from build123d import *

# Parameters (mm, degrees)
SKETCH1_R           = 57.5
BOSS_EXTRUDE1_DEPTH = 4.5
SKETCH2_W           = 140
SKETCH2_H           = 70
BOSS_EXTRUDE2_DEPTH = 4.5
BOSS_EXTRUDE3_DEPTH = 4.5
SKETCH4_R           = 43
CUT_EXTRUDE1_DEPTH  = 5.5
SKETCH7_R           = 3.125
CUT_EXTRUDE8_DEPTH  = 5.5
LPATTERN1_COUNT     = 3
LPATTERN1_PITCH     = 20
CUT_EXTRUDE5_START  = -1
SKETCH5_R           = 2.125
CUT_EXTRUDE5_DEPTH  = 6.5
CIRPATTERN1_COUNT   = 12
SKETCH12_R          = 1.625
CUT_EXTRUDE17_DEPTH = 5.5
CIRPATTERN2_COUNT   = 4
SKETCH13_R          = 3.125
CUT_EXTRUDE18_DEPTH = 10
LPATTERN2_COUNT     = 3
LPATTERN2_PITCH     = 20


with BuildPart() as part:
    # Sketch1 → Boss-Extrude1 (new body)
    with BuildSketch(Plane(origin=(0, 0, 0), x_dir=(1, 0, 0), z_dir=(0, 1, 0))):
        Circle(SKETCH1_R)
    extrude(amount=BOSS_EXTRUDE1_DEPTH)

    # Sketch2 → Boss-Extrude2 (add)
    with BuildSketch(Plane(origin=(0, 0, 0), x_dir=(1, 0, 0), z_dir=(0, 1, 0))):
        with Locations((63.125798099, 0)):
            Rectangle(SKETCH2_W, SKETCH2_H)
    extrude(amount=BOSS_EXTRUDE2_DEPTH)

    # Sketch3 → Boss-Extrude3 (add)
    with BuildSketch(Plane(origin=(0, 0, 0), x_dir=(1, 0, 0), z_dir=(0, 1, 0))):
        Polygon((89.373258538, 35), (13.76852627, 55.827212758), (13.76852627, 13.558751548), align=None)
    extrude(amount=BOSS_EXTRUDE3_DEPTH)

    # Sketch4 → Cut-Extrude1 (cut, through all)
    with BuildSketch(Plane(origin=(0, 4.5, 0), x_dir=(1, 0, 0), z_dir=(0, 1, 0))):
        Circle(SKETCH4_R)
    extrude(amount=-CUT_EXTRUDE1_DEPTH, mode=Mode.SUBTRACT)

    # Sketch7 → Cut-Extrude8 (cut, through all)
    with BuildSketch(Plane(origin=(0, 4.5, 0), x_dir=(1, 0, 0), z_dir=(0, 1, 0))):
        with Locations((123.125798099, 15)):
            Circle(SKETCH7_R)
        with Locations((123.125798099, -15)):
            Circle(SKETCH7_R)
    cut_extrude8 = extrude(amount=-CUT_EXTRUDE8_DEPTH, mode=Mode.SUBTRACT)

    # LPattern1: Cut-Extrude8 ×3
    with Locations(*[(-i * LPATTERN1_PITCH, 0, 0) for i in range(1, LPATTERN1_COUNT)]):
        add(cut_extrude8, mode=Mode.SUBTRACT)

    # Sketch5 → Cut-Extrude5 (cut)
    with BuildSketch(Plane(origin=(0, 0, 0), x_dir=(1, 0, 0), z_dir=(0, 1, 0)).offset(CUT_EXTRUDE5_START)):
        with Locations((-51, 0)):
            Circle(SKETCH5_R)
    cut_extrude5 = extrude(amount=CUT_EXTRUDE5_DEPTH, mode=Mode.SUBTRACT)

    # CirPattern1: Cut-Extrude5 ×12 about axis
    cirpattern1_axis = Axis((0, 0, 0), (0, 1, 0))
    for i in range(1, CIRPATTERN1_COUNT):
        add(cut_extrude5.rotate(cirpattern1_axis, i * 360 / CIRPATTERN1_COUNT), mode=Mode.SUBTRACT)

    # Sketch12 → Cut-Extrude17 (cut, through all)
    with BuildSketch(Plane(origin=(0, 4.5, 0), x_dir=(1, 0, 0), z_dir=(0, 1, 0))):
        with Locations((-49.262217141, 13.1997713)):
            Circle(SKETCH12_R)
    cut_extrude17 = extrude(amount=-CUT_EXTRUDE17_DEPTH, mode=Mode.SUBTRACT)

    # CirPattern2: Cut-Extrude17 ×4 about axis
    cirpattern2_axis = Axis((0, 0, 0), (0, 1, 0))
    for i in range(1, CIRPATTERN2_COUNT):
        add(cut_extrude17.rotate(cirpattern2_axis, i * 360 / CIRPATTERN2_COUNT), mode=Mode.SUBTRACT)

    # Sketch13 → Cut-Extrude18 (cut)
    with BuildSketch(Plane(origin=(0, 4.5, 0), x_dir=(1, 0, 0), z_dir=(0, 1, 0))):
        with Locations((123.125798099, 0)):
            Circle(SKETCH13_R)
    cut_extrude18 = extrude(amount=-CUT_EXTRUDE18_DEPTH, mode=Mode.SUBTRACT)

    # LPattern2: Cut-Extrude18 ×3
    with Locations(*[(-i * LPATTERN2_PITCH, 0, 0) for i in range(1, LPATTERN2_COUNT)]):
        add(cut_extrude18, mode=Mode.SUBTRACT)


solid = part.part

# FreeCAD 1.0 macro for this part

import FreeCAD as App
import Part
import Sketcher

V = App.Vector
Q = App.Units.Quantity

doc = App.newDocument("Part")
body = doc.addObject("PartDesign::Body", "Body")

# Sketch on XZ plane
sketch1 = body.newObject("Sketcher::SketchObject", "Sketch")
sketch1.AttachmentSupport = (doc.getObject("XZ_Plane"), [""])
sketch1.MapMode = "FlatFace"
sketch1.addGeometry(Part.Circle(V(0, 0, 0), V(0, 0, 1), 57.5), False)
sketch1.addConstraint(Sketcher.Constraint("Coincident", 0, 3, -1, 1))
sketch1.addConstraint(Sketcher.Constraint("Diameter", 0, Q("115 mm")))
pad1 = body.newObject("PartDesign::Pad", "Pad")
pad1.Profile = sketch1
pad1.Length = 4.5
pad1.Reversed = True

# Sketch on XZ plane
sketch2 = body.newObject("Sketcher::SketchObject", "Sketch001")
sketch2.AttachmentSupport = (doc.getObject("XZ_Plane"), [""])
sketch2.MapMode = "FlatFace"
sketch2.addGeometry(Part.LineSegment(V(-6.874202, -35, 0), V(-6.874202, 35, 0)), False)
sketch2.addGeometry(Part.LineSegment(V(-6.874202, 35, 0), V(133.125798, 35, 0)), False)
sketch2.addGeometry(Part.LineSegment(V(133.125798, 35, 0), V(133.125798, -35, 0)), False)
sketch2.addGeometry(Part.LineSegment(V(133.125798, -35, 0), V(-6.874202, -35, 0)), False)
sketch2.addConstraint(Sketcher.Constraint("Coincident", 0, 2, 1, 1))
sketch2.addConstraint(Sketcher.Constraint("Coincident", 1, 2, 2, 1))
sketch2.addConstraint(Sketcher.Constraint("Coincident", 2, 2, 3, 1))
sketch2.addConstraint(Sketcher.Constraint("Coincident", 3, 2, 0, 1))
sketch2.addConstraint(Sketcher.Constraint("Vertical", 0))
sketch2.addConstraint(Sketcher.Constraint("Horizontal", 1))
sketch2.addConstraint(Sketcher.Constraint("Vertical", 2))
sketch2.addConstraint(Sketcher.Constraint("Horizontal", 3))
sketch2.addConstraint(Sketcher.Constraint("DistanceX", 1, 1, 1, 2, Q("140 mm")))
sketch2.addConstraint(Sketcher.Constraint("DistanceY", 0, 1, 0, 2, Q("70 mm")))
sketch2.addConstraint(Sketcher.Constraint("DistanceY", -1, 1, 0, 2, Q("35 mm")))
sketch2.addConstraint(Sketcher.Constraint("DistanceX", 0, 2, -1, 1, Q("6.874202 mm")))
pad2 = body.newObject("PartDesign::Pad", "Pad001")
pad2.Profile = sketch2
pad2.Length = 4.5
pad2.Reversed = True

# Sketch on XZ plane
sketch3 = body.newObject("Sketcher::SketchObject", "Sketch002")
sketch3.AttachmentSupport = (doc.getObject("XZ_Plane"), [""])
sketch3.MapMode = "FlatFace"
sketch3.addGeometry(Part.LineSegment(V(89.373259, -35, 0), V(13.768526, -55.827213, 0)), False)
sketch3.addGeometry(Part.LineSegment(V(13.768526, -55.827213, 0), V(13.768526, -13.558752, 0)), False)
sketch3.addGeometry(Part.LineSegment(V(13.768526, -13.558752, 0), V(89.373259, -35, 0)), False)
sketch3.addConstraint(Sketcher.Constraint("Coincident", 0, 2, 1, 1))
sketch3.addConstraint(Sketcher.Constraint("Coincident", 1, 2, 2, 1))
sketch3.addConstraint(Sketcher.Constraint("Coincident", 2, 2, 0, 1))
sketch3.addConstraint(Sketcher.Constraint("Vertical", 1))
sketch3.addConstraint(Sketcher.Constraint("DistanceY", 2, 2, -1, 1, Q("35 mm")))
sketch3.addConstraint(Sketcher.Constraint("DistanceY", 1, 1, 1, 2, Q("42.268461 mm")))
sketch3.addConstraint(Sketcher.Constraint("Distance", 0, Q("78.420969 mm")))
sketch3.addConstraint(Sketcher.Constraint("DistanceY", 1, 2, -1, 1, Q("13.558752 mm")))
sketch3.addConstraint(Sketcher.Constraint("DistanceX", -1, 1, 2, 2, Q("89.373259 mm")))
pad3 = body.newObject("PartDesign::Pad", "Pad002")
pad3.Profile = sketch3
pad3.Length = 4.5
pad3.Reversed = True

# Sketch on XZ plane
sketch4 = body.newObject("Sketcher::SketchObject", "Sketch003")
sketch4.AttachmentSupport = (doc.getObject("XZ_Plane"), [""])
sketch4.MapMode = "FlatFace"
sketch4.AttachmentOffset = App.Placement(V(0, 0, -4.5), App.Rotation())
sketch4.addGeometry(Part.Circle(V(0, 0, 0), V(0, 0, 1), 43), False)
sketch4.addConstraint(Sketcher.Constraint("Coincident", 0, 3, -1, 1))
sketch4.addConstraint(Sketcher.Constraint("Diameter", 0, Q("86 mm")))
pocket1 = body.newObject("PartDesign::Pocket", "Pocket")
pocket1.Profile = sketch4
pocket1.Type = "ThroughAll"
pocket1.Reversed = True

# Sketch on XZ plane
sketch5 = body.newObject("Sketcher::SketchObject", "Sketch004")
sketch5.AttachmentSupport = (doc.getObject("XZ_Plane"), [""])
sketch5.MapMode = "FlatFace"
sketch5.AttachmentOffset = App.Placement(V(0, 0, -4.5), App.Rotation())
sketch5.addGeometry(Part.Circle(V(123.125798, -15, 0), V(0, 0, 1), 3.125), False)
sketch5.addGeometry(Part.Circle(V(123.125798, 15, 0), V(0, 0, 1), 3.125), False)
sketch5.addConstraint(Sketcher.Constraint("Equal", 0, 1))
sketch5.addConstraint(Sketcher.Constraint("Symmetric", 0, 3, 1, 3, -1))
sketch5.addConstraint(Sketcher.Constraint("Diameter", 0, Q("6.25 mm")))
sketch5.addConstraint(Sketcher.Constraint("DistanceY", 0, 3, -1, 1, Q("15 mm")))
sketch5.addConstraint(Sketcher.Constraint("DistanceX", -1, 1, 0, 3, Q("123.125798 mm")))
pocket2 = body.newObject("PartDesign::Pocket", "Pocket001")
pocket2.Profile = sketch5
pocket2.Type = "ThroughAll"
pocket2.Reversed = True
doc.recompute()

linearpattern = body.newObject("PartDesign::LinearPattern", "LinearPattern")
linearpattern.Originals = [pocket2]
linearpattern.Direction = (doc.getObject("X_Axis"), [""])
linearpattern.Mode = "offset"
linearpattern.Offset = 20
linearpattern.Occurrences = 3
linearpattern.Reversed = True
body.Tip = linearpattern

# Sketch on XZ plane
sketch6 = body.newObject("Sketcher::SketchObject", "Sketch005")
sketch6.AttachmentSupport = (doc.getObject("XZ_Plane"), [""])
sketch6.MapMode = "FlatFace"
sketch6.AttachmentOffset = App.Placement(V(0, 0, 1), App.Rotation())
sketch6.addGeometry(Part.Circle(V(-51, 0, 0), V(0, 0, 1), 2.125), False)
sketch6.addConstraint(Sketcher.Constraint("PointOnObject", 0, 3, -1))
sketch6.addConstraint(Sketcher.Constraint("Diameter", 0, Q("4.25 mm")))
sketch6.addConstraint(Sketcher.Constraint("DistanceX", 0, 3, -1, 1, Q("51 mm")))
pocket3 = body.newObject("PartDesign::Pocket", "Pocket002")
pocket3.Profile = sketch6
pocket3.Length = 6.5
doc.recompute()

polarpattern = body.newObject("PartDesign::PolarPattern", "PolarPattern")
polarpattern.Originals = [pocket3]
polarpattern.Axis = (doc.getObject("Y_Axis"), [""])
polarpattern.Angle = 360
polarpattern.Occurrences = 12
body.Tip = polarpattern

# Sketch on XZ plane
sketch7 = body.newObject("Sketcher::SketchObject", "Sketch006")
sketch7.AttachmentSupport = (doc.getObject("XZ_Plane"), [""])
sketch7.MapMode = "FlatFace"
sketch7.AttachmentOffset = App.Placement(V(0, 0, -4.5), App.Rotation())
sketch7.addGeometry(Part.Circle(V(-49.262217, -13.199771, 0), V(0, 0, 1), 1.625), False)
sketch7.addConstraint(Sketcher.Constraint("Diameter", 0, Q("3.25 mm")))
sketch7.addConstraint(Sketcher.Constraint("DistanceY", 0, 3, -1, 1, Q("13.199771 mm")))
sketch7.addConstraint(Sketcher.Constraint("DistanceX", 0, 3, -1, 1, Q("49.262217 mm")))
pocket4 = body.newObject("PartDesign::Pocket", "Pocket003")
pocket4.Profile = sketch7
pocket4.Type = "ThroughAll"
pocket4.Reversed = True
doc.recompute()

polarpattern2 = body.newObject("PartDesign::PolarPattern", "PolarPattern001")
polarpattern2.Originals = [pocket4]
polarpattern2.Axis = (doc.getObject("Y_Axis"), [""])
polarpattern2.Angle = 360
polarpattern2.Occurrences = 4
body.Tip = polarpattern2

# Sketch on XZ plane
sketch8 = body.newObject("Sketcher::SketchObject", "Sketch007")
sketch8.AttachmentSupport = (doc.getObject("XZ_Plane"), [""])
sketch8.MapMode = "FlatFace"
sketch8.AttachmentOffset = App.Placement(V(0, 0, -4.5), App.Rotation())
sketch8.addGeometry(Part.Circle(V(123.125798, 0, 0), V(0, 0, 1), 3.125), False)
sketch8.addConstraint(Sketcher.Constraint("PointOnObject", 0, 3, -1))
sketch8.addConstraint(Sketcher.Constraint("Diameter", 0, Q("6.25 mm")))
sketch8.addConstraint(Sketcher.Constraint("DistanceX", -1, 1, 0, 3, Q("123.125798 mm")))
pocket5 = body.newObject("PartDesign::Pocket", "Pocket004")
pocket5.Profile = sketch8
pocket5.Length = 10
pocket5.Reversed = True
doc.recompute()

linearpattern2 = body.newObject("PartDesign::LinearPattern", "LinearPattern001")
linearpattern2.Originals = [pocket5]
linearpattern2.Direction = (doc.getObject("X_Axis"), [""])
linearpattern2.Mode = "offset"
linearpattern2.Offset = 20
linearpattern2.Occurrences = 3
linearpattern2.Reversed = True
body.Tip = linearpattern2

doc.recompute()
